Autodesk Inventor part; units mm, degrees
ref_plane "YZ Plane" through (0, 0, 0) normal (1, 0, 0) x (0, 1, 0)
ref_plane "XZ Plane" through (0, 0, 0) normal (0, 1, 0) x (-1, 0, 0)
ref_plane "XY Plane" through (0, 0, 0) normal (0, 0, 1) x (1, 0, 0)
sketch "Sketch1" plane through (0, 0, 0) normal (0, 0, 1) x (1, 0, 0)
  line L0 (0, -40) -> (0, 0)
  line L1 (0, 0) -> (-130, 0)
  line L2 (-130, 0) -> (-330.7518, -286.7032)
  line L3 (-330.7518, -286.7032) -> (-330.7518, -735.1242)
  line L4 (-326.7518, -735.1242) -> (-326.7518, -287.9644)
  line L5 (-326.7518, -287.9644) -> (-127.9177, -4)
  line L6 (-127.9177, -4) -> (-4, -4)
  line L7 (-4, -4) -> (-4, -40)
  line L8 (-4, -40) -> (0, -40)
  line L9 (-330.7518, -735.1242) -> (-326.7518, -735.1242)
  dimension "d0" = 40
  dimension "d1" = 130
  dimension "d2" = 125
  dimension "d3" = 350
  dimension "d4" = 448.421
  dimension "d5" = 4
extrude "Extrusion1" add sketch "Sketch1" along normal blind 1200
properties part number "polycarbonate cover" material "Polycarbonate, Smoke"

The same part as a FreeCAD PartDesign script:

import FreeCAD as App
import Part
import Sketcher
Q = App.Units.Quantity

doc = App.newDocument("Part")
body = doc.addObject("PartDesign::Body", "Body")

# Sketch on XY plane
sketch1 = doc.addObject("Sketcher::SketchObject", "Sketch")
body.addObject(sketch1)
sketch1.AttachmentSupport = (doc.XY_Plane, [""])
sketch1.MapMode = "FlatFace"
sketch1.addGeometry([
    Part.LineSegment(App.Vector(-4, -40, 0), App.Vector(0, -40, 0)),  # 0
    Part.LineSegment(App.Vector(0, -40, 0), App.Vector(0, 0, 0)),  # 1
    Part.LineSegment(App.Vector(0, 0, 0), App.Vector(-130, 0, 0)),  # 2
    Part.LineSegment(App.Vector(-130, 0, 0), App.Vector(-330.8, -286.7, 0)),  # 3
    Part.LineSegment(App.Vector(-330.8, -286.7, 0), App.Vector(-330.8, -735.1, 0)),  # 4
    Part.LineSegment(App.Vector(-330.8, -735.1, 0), App.Vector(-326.8, -735.1, 0)),  # 5
    Part.LineSegment(App.Vector(-326.8, -735.1, 0), App.Vector(-326.8, -288, 0)),  # 6
    Part.LineSegment(App.Vector(-326.8, -288, 0), App.Vector(-127.9, -4, 0)),  # 7
    Part.LineSegment(App.Vector(-127.9, -4, 0), App.Vector(-4, -4, 0)),  # 8
    Part.LineSegment(App.Vector(-4, -4, 0), App.Vector(-4, -40, 0)),  # 9
], False)
sketch1.addConstraint([
    Sketcher.Constraint("Coincident", 0, 2, 1, 1),
    Sketcher.Constraint("Coincident", 1, 2, 2, 1),
    Sketcher.Constraint("Coincident", 2, 2, 3, 1),
    Sketcher.Constraint("Coincident", 3, 2, 4, 1),
    Sketcher.Constraint("Coincident", 4, 2, 5, 1),
    Sketcher.Constraint("Coincident", 5, 2, 6, 1),
    Sketcher.Constraint("Coincident", 6, 2, 7, 1),
    Sketcher.Constraint("Coincident", 7, 2, 8, 1),
    Sketcher.Constraint("Coincident", 8, 2, 9, 1),
    Sketcher.Constraint("Coincident", 9, 2, 0, 1),
    Sketcher.Constraint("Horizontal", 0),
    Sketcher.Constraint("Vertical", 1),
    Sketcher.Constraint("Horizontal", 2),
    Sketcher.Constraint("Vertical", 4),
    Sketcher.Constraint("Horizontal", 5),
    Sketcher.Constraint("Vertical", 6),
    Sketcher.Constraint("Horizontal", 8),
    Sketcher.Constraint("Vertical", 9),
    Sketcher.Constraint("Coincident", 1, 2, -1, 1),
    Sketcher.Constraint("Parallel", 3, 7),
    Sketcher.Constraint("Equal", 0, 5),
    Sketcher.Constraint("DistanceX", 0, 1, 0, 2, 4.0),
    Sketcher.Constraint("DistanceX", 2, 2, 2, 1, 130.0),
    Sketcher.Constraint("DistanceY", 1, 1, 1, 2, 40.0),
    Sketcher.Constraint("Angle", 3, Q("-125 deg")),
    Sketcher.Constraint("Distance", 3, 350.0),
    Sketcher.Constraint("DistanceY", 7, 2, -1, 1, 4.0),
    Sketcher.Constraint("DistanceY", 4, 2, 4, 1, 448.421),
    Sketcher.Constraint("DistanceX", 8, 1, 8, 2, 123.9177),
])
pad1 = doc.addObject("PartDesign::Pad", "Pad")
body.addObject(pad1)
pad1.Profile = sketch1
pad1.Length = 1200

doc.recompute()
